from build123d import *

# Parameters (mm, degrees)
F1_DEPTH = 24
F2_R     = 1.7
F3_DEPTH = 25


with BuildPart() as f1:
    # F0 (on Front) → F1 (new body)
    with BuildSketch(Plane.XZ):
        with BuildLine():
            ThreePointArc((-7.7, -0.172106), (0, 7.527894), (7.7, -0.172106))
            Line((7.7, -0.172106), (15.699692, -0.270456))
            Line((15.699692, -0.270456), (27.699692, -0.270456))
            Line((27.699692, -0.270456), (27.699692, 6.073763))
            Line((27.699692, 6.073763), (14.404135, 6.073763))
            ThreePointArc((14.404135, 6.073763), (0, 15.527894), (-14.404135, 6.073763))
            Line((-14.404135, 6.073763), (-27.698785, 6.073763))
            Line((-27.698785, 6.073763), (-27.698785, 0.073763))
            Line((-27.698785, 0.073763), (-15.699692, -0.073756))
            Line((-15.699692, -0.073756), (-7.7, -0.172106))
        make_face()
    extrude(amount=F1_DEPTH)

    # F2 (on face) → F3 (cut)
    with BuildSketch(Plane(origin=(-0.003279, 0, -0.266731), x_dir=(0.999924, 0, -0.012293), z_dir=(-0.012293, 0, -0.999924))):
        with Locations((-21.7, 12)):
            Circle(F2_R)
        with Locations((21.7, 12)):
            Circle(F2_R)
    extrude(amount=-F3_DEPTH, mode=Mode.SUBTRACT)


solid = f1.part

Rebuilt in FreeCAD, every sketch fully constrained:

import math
import FreeCAD as App
import Part
import Sketcher
Q = App.Units.Quantity

doc = App.newDocument("Part")
params = doc.addObject("Spreadsheet::Sheet", "Params")
for row, (alias, value) in enumerate([
    ("sketch1_radius", "7.7 mm"),
    ("sketch1_radius2", "15.699999 mm"),
    ("sketch1_width", "12 mm"),
    ("sketch1_height", "6 mm"),
    ("sketch1_length", "12 mm"),
    ("pad1_length", "24 mm"),
    ("sketch2_diameter", "3.4 mm"),
    ("pocket1_length", "25 mm"),
], start=1):
    params.set(f"A{row}", alias)
    params.set(f"B{row}", "=" + value)
    params.setAlias(f"B{row}", alias)

body = doc.addObject("PartDesign::Body", "Body")

sketch1 = body.newObject("Sketcher::SketchObject", "Sketch")
sketch1.AttachmentSupport = (doc.getObject("XZ_Plane"), [""])
sketch1.MapMode = "FlatFace"
sketch1.addGeometry(Part.ArcOfCircle(Part.Circle(App.Vector(0, 0, 0), App.Vector(0, 0, 1), 8), math.radians(0), math.radians(180)), False)
sketch1.addGeometry(Part.LineSegment(App.Vector(8, 0, 0), App.Vector(16, 0, 0)), False)
sketch1.addGeometry(Part.LineSegment(App.Vector(16, 0, 0), App.Vector(28, 0, 0)), False)
sketch1.addGeometry(Part.LineSegment(App.Vector(28, 0, 0), App.Vector(28, 6, 0)), False)
sketch1.addGeometry(Part.LineSegment(App.Vector(28, 6, 0), App.Vector(14, 6, 0)), False)
sketch1.addGeometry(Part.ArcOfCircle(Part.Circle(App.Vector(0, 0, 0), App.Vector(0, 0, 1), 16), math.radians(23), math.radians(157)), False)
sketch1.addGeometry(Part.LineSegment(App.Vector(-14, 6, 0), App.Vector(-28, 6, 0)), False)
sketch1.addGeometry(Part.LineSegment(App.Vector(-28, 6, 0), App.Vector(-28, 0, 0)), False)
sketch1.addGeometry(Part.LineSegment(App.Vector(-28, 0, 0), App.Vector(-16, 0, 0)), False)
sketch1.addGeometry(Part.LineSegment(App.Vector(-16, 0, 0), App.Vector(-8, 0, 0)), False)
sketch1.addConstraint(Sketcher.Constraint("Coincident", 0, 1, 1, 1))
sketch1.addConstraint(Sketcher.Constraint("Coincident", 1, 2, 2, 1))
sketch1.addConstraint(Sketcher.Constraint("Coincident", 2, 2, 3, 1))
sketch1.addConstraint(Sketcher.Constraint("Coincident", 3, 2, 4, 1))
sketch1.addConstraint(Sketcher.Constraint("Coincident", 4, 2, 5, 1))
sketch1.addConstraint(Sketcher.Constraint("Coincident", 5, 2, 6, 1))
sketch1.addConstraint(Sketcher.Constraint("Coincident", 6, 2, 7, 1))
sketch1.addConstraint(Sketcher.Constraint("Coincident", 7, 2, 8, 1))
sketch1.addConstraint(Sketcher.Constraint("Coincident", 8, 2, 9, 1))
sketch1.addConstraint(Sketcher.Constraint("Coincident", 9, 2, 0, 2))
sketch1.addConstraint(Sketcher.Constraint("Horizontal", 2))
sketch1.addConstraint(Sketcher.Constraint("Vertical", 3))
sketch1.addConstraint(Sketcher.Constraint("Horizontal", 4))
sketch1.addConstraint(Sketcher.Constraint("Horizontal", 6))
sketch1.addConstraint(Sketcher.Constraint("Vertical", 7))
sketch1.addConstraint(Sketcher.Constraint("Coincident", 5, 3, 0, 3))
sketch1.addConstraint(Sketcher.Constraint("Symmetric", 4, 2, 5, 2, -2))
sketch1.addConstraint(Sketcher.Constraint("Parallel", 1, 8))
sketch1.addConstraint(Sketcher.Constraint("Parallel", 8, 9))
sketch1.addConstraint(Sketcher.Constraint("Horizontal", 5, 3, 0, 1))
sketch1.addConstraint(Sketcher.Constraint("Horizontal", 0, 1, 9, 2))
sketch1.addConstraint(Sketcher.Constraint("Equal", 1, 9))
sketch1.addConstraint(Sketcher.Constraint("Radius", 0, Q("7.7 mm")))
sketch1.addConstraint(Sketcher.Constraint("Radius", 5, Q("15.699999 mm")))
sketch1.addConstraint(Sketcher.Constraint("DistanceX", 2, 1, 2, 2, Q("12 mm")))
sketch1.addConstraint(Sketcher.Constraint("DistanceY", 7, 2, 7, 1, Q("6 mm")))
sketch1.addConstraint(Sketcher.Constraint("Distance", 8, Q("12 mm")))
sketch1.addConstraint(Sketcher.Constraint("DistanceX", 6, 2, 6, 1, Q("13.29465 mm")))
sketch1.addConstraint(Sketcher.Constraint("DistanceY", 3, 1, 3, 2, Q("6.344219 mm")))
sketch1.addConstraint(Sketcher.Constraint("DistanceY", 0, 3, -1, 1, Q("0.172106 mm")))
sketch1.setExpression("Constraints[22]", "Params.sketch1_radius")
sketch1.setExpression("Constraints[23]", "Params.sketch1_radius2")
sketch1.setExpression("Constraints[24]", "Params.sketch1_width")
sketch1.setExpression("Constraints[25]", "Params.sketch1_height")
sketch1.setExpression("Constraints[26]", "Params.sketch1_length")
pad1 = body.newObject("PartDesign::Pad", "Pad")
pad1.Profile = sketch1
pad1.setExpression("Length", "Params.pad1_length")

sketch2 = body.newObject("Sketcher::SketchObject", "Sketch001")
sketch2.Placement = App.Placement(App.Vector(-0.003279, 0, -0.266731), App.Rotation(App.Vector(0.999924438, 0, -0.012293005), App.Vector(0, -1, 0), App.Vector(-0.012293005, 0, -0.999924438), "ZXY"))
sketch2.addGeometry(Part.Circle(App.Vector(-21.7, 12, 0), App.Vector(0, 0, 1), 1.7), False)
sketch2.addGeometry(Part.Circle(App.Vector(21.7, 12, 0), App.Vector(0, 0, 1), 1.7), False)
sketch2.addConstraint(Sketcher.Constraint("Equal", 0, 1))
sketch2.addConstraint(Sketcher.Constraint("Symmetric", 0, 3, 1, 3, -2))
sketch2.addConstraint(Sketcher.Constraint("Diameter", 0, Q("3.4 mm")))
sketch2.addConstraint(Sketcher.Constraint("DistanceY", -1, 1, 0, 3, Q("12 mm")))
sketch2.addConstraint(Sketcher.Constraint("DistanceX", 0, 3, -1, 1, Q("21.7 mm")))
sketch2.setExpression("Constraints[2]", "Params.sketch2_diameter")
pocket1 = body.newObject("PartDesign::Pocket", "Pocket")
pocket1.Profile = sketch2
pocket1.setExpression("Length", "Params.pocket1_length")

doc.recompute()
